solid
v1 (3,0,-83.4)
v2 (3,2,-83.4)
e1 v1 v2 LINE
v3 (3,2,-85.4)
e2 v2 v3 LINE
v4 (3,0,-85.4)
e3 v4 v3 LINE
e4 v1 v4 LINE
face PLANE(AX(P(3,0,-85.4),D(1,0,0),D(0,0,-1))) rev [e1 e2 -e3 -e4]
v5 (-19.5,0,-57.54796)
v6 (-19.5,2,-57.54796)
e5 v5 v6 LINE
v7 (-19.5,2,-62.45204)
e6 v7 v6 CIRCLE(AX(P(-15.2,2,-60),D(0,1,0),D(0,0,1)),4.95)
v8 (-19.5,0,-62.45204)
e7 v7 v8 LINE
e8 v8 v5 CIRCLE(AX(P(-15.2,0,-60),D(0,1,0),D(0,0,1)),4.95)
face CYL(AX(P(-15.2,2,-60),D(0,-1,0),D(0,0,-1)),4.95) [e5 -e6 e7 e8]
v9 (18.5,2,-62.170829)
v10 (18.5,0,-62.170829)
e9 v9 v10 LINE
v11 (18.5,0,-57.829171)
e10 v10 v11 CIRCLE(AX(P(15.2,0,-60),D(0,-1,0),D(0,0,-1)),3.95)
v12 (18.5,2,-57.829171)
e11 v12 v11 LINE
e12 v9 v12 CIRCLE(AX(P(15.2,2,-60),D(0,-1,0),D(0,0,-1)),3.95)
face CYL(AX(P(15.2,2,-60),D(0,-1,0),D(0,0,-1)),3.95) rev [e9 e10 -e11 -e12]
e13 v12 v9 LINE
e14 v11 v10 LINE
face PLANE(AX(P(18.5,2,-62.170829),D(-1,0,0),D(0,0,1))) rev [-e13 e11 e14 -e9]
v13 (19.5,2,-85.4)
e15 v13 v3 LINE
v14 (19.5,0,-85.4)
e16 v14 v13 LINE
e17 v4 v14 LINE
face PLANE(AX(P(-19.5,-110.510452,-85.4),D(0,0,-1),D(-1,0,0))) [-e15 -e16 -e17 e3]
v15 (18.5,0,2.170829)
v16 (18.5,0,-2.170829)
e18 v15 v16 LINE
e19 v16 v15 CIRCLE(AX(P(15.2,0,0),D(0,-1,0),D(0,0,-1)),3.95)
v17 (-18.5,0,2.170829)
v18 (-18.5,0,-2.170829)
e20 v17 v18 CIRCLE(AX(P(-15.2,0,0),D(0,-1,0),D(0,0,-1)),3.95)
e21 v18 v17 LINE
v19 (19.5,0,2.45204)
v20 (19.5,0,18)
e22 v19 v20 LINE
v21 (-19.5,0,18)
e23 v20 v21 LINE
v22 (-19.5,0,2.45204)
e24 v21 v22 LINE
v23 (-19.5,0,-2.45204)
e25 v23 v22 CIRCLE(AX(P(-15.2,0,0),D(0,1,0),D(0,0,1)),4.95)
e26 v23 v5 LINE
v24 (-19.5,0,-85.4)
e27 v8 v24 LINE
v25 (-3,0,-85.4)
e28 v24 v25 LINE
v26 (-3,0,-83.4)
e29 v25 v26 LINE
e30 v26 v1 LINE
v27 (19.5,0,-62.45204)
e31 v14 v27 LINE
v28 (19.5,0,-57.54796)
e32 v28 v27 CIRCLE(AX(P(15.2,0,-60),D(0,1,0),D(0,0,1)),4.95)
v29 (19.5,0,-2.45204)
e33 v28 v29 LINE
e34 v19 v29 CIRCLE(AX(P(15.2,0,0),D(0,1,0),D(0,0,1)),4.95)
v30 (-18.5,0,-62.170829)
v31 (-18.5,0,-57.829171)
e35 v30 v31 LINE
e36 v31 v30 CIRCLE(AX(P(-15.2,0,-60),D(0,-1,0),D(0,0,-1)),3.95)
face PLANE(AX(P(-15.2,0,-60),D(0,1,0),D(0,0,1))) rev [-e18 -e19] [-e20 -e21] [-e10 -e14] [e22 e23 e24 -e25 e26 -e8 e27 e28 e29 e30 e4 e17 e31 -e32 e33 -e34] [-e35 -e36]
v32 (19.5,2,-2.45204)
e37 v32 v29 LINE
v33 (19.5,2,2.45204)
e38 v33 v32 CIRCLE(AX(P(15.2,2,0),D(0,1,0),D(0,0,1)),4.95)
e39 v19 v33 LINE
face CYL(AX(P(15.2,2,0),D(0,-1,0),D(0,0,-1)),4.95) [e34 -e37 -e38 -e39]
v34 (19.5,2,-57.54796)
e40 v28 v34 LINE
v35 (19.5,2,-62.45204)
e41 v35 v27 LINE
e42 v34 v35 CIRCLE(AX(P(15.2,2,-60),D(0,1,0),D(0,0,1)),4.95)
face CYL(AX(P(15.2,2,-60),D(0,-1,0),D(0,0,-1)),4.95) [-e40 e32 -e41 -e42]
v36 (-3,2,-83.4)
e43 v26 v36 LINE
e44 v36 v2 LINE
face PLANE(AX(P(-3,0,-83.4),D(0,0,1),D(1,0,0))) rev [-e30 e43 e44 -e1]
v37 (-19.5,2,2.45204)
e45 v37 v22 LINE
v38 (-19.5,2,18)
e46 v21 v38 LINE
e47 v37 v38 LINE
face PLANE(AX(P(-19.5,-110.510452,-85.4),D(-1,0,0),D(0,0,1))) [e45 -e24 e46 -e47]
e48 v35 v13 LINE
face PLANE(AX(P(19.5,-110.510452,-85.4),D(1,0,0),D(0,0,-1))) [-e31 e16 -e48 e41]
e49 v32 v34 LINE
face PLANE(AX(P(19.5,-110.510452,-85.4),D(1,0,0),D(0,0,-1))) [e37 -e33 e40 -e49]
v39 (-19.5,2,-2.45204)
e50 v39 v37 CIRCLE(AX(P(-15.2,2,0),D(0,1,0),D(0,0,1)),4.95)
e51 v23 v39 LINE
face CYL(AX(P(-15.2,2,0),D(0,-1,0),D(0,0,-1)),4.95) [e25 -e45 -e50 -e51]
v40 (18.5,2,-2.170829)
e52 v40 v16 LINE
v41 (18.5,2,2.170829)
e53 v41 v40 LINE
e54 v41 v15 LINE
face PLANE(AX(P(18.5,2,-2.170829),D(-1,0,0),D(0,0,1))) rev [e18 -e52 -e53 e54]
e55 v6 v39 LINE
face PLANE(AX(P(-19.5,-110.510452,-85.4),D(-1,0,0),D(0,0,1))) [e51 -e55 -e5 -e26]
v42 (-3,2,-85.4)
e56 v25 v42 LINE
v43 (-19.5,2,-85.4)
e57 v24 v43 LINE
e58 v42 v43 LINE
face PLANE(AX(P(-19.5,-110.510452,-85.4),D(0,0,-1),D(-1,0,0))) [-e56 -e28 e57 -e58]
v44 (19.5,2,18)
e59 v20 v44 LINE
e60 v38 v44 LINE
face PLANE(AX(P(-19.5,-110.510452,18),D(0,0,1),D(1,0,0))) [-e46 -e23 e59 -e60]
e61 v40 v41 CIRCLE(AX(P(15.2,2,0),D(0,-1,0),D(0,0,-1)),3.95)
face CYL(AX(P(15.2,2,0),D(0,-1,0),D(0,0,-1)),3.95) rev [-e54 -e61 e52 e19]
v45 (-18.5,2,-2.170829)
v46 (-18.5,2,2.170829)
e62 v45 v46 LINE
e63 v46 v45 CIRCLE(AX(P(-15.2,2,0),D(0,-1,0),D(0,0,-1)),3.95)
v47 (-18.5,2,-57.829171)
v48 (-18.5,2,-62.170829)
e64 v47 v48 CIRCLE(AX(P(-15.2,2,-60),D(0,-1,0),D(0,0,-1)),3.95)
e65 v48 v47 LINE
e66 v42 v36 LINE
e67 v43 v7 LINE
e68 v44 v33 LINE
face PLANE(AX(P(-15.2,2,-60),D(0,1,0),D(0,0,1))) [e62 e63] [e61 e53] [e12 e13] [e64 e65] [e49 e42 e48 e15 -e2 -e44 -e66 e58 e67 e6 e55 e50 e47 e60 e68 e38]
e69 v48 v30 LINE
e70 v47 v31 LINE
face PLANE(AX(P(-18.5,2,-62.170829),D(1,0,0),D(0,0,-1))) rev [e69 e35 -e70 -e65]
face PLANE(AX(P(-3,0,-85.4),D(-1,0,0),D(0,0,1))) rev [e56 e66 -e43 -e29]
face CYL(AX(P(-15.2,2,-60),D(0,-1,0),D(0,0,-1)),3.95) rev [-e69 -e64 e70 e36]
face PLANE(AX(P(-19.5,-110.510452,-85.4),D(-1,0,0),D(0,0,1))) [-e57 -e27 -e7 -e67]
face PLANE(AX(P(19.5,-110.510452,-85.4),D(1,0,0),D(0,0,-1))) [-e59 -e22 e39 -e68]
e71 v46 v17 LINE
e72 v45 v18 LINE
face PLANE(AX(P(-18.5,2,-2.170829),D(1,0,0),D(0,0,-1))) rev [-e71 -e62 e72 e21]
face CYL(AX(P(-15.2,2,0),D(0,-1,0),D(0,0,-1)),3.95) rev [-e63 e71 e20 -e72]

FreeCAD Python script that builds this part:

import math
import FreeCAD as App
import Part
import Sketcher

doc = App.newDocument("Part")
body = doc.addObject("PartDesign::Body", "Body")

sketch1 = body.newObject("Sketcher::SketchObject", "Sketch")
sketch1.AttachmentSupport = (doc.getObject("XZ_Plane"), [""])
sketch1.MapMode = "FlatFace"
sketch1.addGeometry(Part.Circle(App.Vector(-15.2, -60, 0), App.Vector(0, 0, 1), 4.95), False)
sketch1.addConstraint([
    Sketcher.Constraint("Diameter", 0, 9.9),
    Sketcher.Constraint("DistanceY", 0, 3, -1, 1, 60.0),
    Sketcher.Constraint("DistanceX", 0, 3, -1, 1, 15.2),
])
pad1 = body.newObject("PartDesign::Pad", "Pad")
pad1.Profile = sketch1
pad1.Length = 2
pad1.Reversed = True
body2 = doc.addObject("PartDesign::Body", "Body001")

sketch2 = body2.newObject("Sketcher::SketchObject", "Sketch001")
sketch2.AttachmentSupport = (doc.getObject("XZ_Plane001"), [""])
sketch2.MapMode = "FlatFace"
sketch2.addGeometry(Part.Circle(App.Vector(15.2, -60, 0), App.Vector(0, 0, 1), 4.95), False)
sketch2.addConstraint([
    Sketcher.Constraint("Diameter", 0, 9.9),
    Sketcher.Constraint("DistanceY", 0, 3, -1, 1, 60.0),
    Sketcher.Constraint("DistanceX", -1, 1, 0, 3, 15.2),
])
pad2 = body2.newObject("PartDesign::Pad", "Pad001")
pad2.Profile = sketch2
pad2.Length = 2
pad2.Reversed = True
body3 = doc.addObject("PartDesign::Body", "Body002")

sketch3 = body3.newObject("Sketcher::SketchObject", "Sketch002")
sketch3.AttachmentSupport = (doc.getObject("XZ_Plane002"), [""])
sketch3.MapMode = "FlatFace"
sketch3.addGeometry(Part.Circle(App.Vector(15.2, 0, 0), App.Vector(0, 0, 1), 4.95), False)
sketch3.addConstraint([
    Sketcher.Constraint("PointOnObject", 0, 3, -1),
    Sketcher.Constraint("Diameter", 0, 9.9),
    Sketcher.Constraint("DistanceX", -1, 1, 0, 3, 15.2),
])
pad3 = body3.newObject("PartDesign::Pad", "Pad002")
pad3.Profile = sketch3
pad3.Length = 2
pad3.Reversed = True
body4 = doc.addObject("PartDesign::Body", "Body003")

sketch4 = body4.newObject("Sketcher::SketchObject", "Sketch003")
sketch4.AttachmentSupport = (doc.getObject("XZ_Plane003"), [""])
sketch4.MapMode = "FlatFace"
sketch4.addGeometry(Part.Circle(App.Vector(-15.2, 0, 0), App.Vector(0, 0, 1), 4.95), False)
sketch4.addConstraint([
    Sketcher.Constraint("PointOnObject", 0, 3, -1),
    Sketcher.Constraint("Diameter", 0, 9.9),
    Sketcher.Constraint("DistanceX", 0, 3, -1, 1, 15.2),
])
pad4 = body4.newObject("PartDesign::Pad", "Pad003")
pad4.Profile = sketch4
pad4.Length = 2
pad4.Reversed = True
body.AllowCompound = True
doc.recompute()

boolean = body.newObject("PartDesign::Boolean", "Boolean")
boolean.Type = "Fuse"
boolean.addObjects([body2])
doc.recompute()

boolean2 = body.newObject("PartDesign::Boolean", "Boolean001")
boolean2.Type = "Fuse"
boolean2.addObjects([body3])
doc.recompute()

boolean3 = body.newObject("PartDesign::Boolean", "Boolean002")
boolean3.Type = "Fuse"
boolean3.addObjects([body4])

sketch5 = body.newObject("Sketcher::SketchObject", "Sketch004")
sketch5.AttachmentSupport = (doc.getObject("XZ_Plane"), [""])
sketch5.MapMode = "FlatFace"
sketch5.AttachmentOffset = App.Placement(App.Vector(0, 0, -2), App.Rotation())
sketch5.addGeometry([
    Part.LineSegment(App.Vector(-19.5, -85.4, 0), App.Vector(-19.5, 18, 0)),
    Part.LineSegment(App.Vector(-19.5, 18, 0), App.Vector(19.5, 18, 0)),
    Part.LineSegment(App.Vector(19.5, 18, 0), App.Vector(19.5, -85.4, 0)),
    Part.LineSegment(App.Vector(19.5, -85.4, 0), App.Vector(-19.5, -85.4, 0)),
], False)
sketch5.addConstraint([
    Sketcher.Constraint("Coincident", 0, 2, 1, 1),
    Sketcher.Constraint("Coincident", 1, 2, 2, 1),
    Sketcher.Constraint("Coincident", 2, 2, 3, 1),
    Sketcher.Constraint("Coincident", 3, 2, 0, 1),
    Sketcher.Constraint("Vertical", 0),
    Sketcher.Constraint("Horizontal", 1),
    Sketcher.Constraint("Vertical", 2),
    Sketcher.Constraint("Horizontal", 3),
    Sketcher.Constraint("DistanceX", 1, 1, 1, 2, 39.0),
    Sketcher.Constraint("DistanceY", 0, 1, 0, 2, 103.4),
    Sketcher.Constraint("DistanceY", -1, 1, 0, 2, 18.0),
    Sketcher.Constraint("DistanceX", 0, 2, -1, 1, 19.5),
])
pad5 = body.newObject("PartDesign::Pad", "Pad004")
pad5.Profile = sketch5
pad5.Length = 2

sketch6 = body.newObject("Sketcher::SketchObject", "Sketch005")
sketch6.AttachmentSupport = (doc.getObject("XZ_Plane"), [""])
sketch6.MapMode = "FlatFace"
sketch6.AttachmentOffset = App.Placement(App.Vector(0, 0, -2), App.Rotation())
sketch6.addGeometry([
    Part.LineSegment(App.Vector(-3, -85.4, 0), App.Vector(-3, -83.4, 0)),
    Part.LineSegment(App.Vector(-3, -83.4, 0), App.Vector(3, -83.4, 0)),
    Part.LineSegment(App.Vector(3, -83.4, 0), App.Vector(3, -85.4, 0)),
    Part.LineSegment(App.Vector(3, -85.4, 0), App.Vector(-3, -85.4, 0)),
], False)
sketch6.addConstraint([
    Sketcher.Constraint("Coincident", 0, 2, 1, 1),
    Sketcher.Constraint("Coincident", 1, 2, 2, 1),
    Sketcher.Constraint("Coincident", 2, 2, 3, 1),
    Sketcher.Constraint("Coincident", 3, 2, 0, 1),
    Sketcher.Constraint("Vertical", 0),
    Sketcher.Constraint("Horizontal", 1),
    Sketcher.Constraint("Vertical", 2),
    Sketcher.Constraint("Horizontal", 3),
    Sketcher.Constraint("DistanceX", 1, 1, 1, 2, 6.0),
    Sketcher.Constraint("DistanceY", 0, 1, 0, 2, 2.0),
    Sketcher.Constraint("DistanceX", 0, 2, -1, 1, 3.0),
    Sketcher.Constraint("DistanceY", 0, 2, -1, 1, 83.4),
])
pocket1 = body.newObject("PartDesign::Pocket", "Pocket")
pocket1.Profile = sketch6
pocket1.Type = "ThroughAll"
pocket1.Reversed = True

sketch7 = body.newObject("Sketcher::SketchObject", "Sketch006")
sketch7.AttachmentSupport = (doc.getObject("XZ_Plane"), [""])
sketch7.MapMode = "FlatFace"
sketch7.addGeometry([
    Part.LineSegment(App.Vector(18.5, -57.829171, 0), App.Vector(18.5, -62.170829, 0)),
    Part.ArcOfCircle(Part.Circle(App.Vector(15.2, -60, 0), App.Vector(0, 0, 1), 3.95), math.radians(-33.338001), math.radians(33.338001)),
    Part.LineSegment(App.Vector(18.5, 2.170829, 0), App.Vector(18.5, -2.170829, 0)),
    Part.ArcOfCircle(Part.Circle(App.Vector(15.2, 0, 0), App.Vector(0, 0, 1), 3.95), math.radians(-33.338001), math.radians(33.338001)),
    Part.LineSegment(App.Vector(-18.5, -2.170829, 0), App.Vector(-18.5, 2.170829, 0)),
    Part.ArcOfCircle(Part.Circle(App.Vector(-15.2, 0, 0), App.Vector(0, 0, 1), 3.95), math.radians(146.661999), math.radians(213.338001)),
    Part.LineSegment(App.Vector(-18.5, -62.170829, 0), App.Vector(-18.5, -57.829171, 0)),
    Part.ArcOfCircle(Part.Circle(App.Vector(-15.2, -60, 0), App.Vector(0, 0, 1), 3.95), math.radians(146.661999), math.radians(213.338001)),
], False)
sketch7.addConstraint([
    Sketcher.Constraint("Coincident", 0, 1, 1, 2),
    Sketcher.Constraint("Coincident", 1, 1, 0, 2),
    Sketcher.Constraint("Coincident", 2, 1, 3, 2),
    Sketcher.Constraint("Coincident", 3, 1, 2, 2),
    Sketcher.Constraint("Coincident", 4, 1, 5, 2),
    Sketcher.Constraint("Coincident", 5, 1, 4, 2),
    Sketcher.Constraint("Coincident", 6, 1, 7, 2),
    Sketcher.Constraint("Coincident", 7, 1, 6, 2),
    Sketcher.Constraint("Vertical", 0),
    Sketcher.Constraint("Vertical", 2),
    Sketcher.Constraint("Vertical", 4),
    Sketcher.Constraint("Vertical", 6),
    Sketcher.Constraint("Equal", 1, 3),
    Sketcher.Constraint("Equal", 3, 5),
    Sketcher.Constraint("Equal", 5, 7),
    Sketcher.Constraint("Symmetric", 3, 3, 5, 3, -1, 1),
    Sketcher.Constraint("Symmetric", 1, 3, 7, 3, -2),
    Sketcher.Constraint("Symmetric", 3, 1, 4, 1, -2),
    Sketcher.Constraint("Horizontal", 1, 1, 6, 1),
    Sketcher.Constraint("Vertical", 1, 3, 3, 3),
    Sketcher.Constraint("Vertical", 1, 1, 2, 1),
    Sketcher.Constraint("Radius", 1, 3.95),
    Sketcher.Constraint("DistanceY", 1, 3, -1, 1, 60.0),
    Sketcher.Constraint("DistanceX", 4, 1, 3, 1, 37.0),
    Sketcher.Constraint("DistanceX", -1, 1, 1, 3, 15.2),
])
pocket2 = body.newObject("PartDesign::Pocket", "Pocket001")
pocket2.Profile = sketch7
pocket2.Type = "ThroughAll"

doc.recompute()
